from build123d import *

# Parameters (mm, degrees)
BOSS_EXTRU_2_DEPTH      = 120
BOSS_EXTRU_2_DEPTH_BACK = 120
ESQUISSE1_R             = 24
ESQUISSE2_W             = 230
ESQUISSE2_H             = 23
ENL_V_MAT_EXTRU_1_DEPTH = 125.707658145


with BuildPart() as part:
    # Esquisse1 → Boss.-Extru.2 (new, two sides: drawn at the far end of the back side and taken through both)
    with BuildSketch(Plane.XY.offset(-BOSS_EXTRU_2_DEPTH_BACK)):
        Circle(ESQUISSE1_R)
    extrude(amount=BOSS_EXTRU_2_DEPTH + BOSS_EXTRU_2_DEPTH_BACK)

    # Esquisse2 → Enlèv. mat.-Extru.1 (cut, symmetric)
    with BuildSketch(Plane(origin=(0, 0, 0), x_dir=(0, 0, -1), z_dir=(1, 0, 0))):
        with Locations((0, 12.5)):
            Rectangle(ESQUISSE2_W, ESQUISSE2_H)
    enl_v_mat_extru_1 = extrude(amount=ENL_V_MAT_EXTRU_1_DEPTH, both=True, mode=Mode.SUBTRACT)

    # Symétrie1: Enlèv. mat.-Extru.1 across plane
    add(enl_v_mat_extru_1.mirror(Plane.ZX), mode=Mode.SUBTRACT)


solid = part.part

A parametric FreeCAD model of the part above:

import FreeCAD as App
import Part
import Sketcher
from FreeCAD import Vector

doc = App.newDocument("Part")
body = doc.addObject("PartDesign::Body", "Body")

sketch1 = body.newObject("Sketcher::SketchObject", "Sketch")
sketch1.AttachmentSupport = (doc.getObject("XY_Plane"), [""])
sketch1.MapMode = "FlatFace"
sketch1.addGeometry(Part.Circle(Vector(0, 0, 0), Vector(0, 0, 1), 24), False)
sketch1.addConstraint(Sketcher.Constraint("Coincident", 0, 3, -1, 1))
sketch1.addConstraint(Sketcher.Constraint("Diameter", 0, 48.0))
pad1 = body.newObject("PartDesign::Pad", "Pad")
pad1.Profile = sketch1
pad1.Type = "TwoLengths"
pad1.Length = 120
pad1.Length2 = 120

sketch2 = body.newObject("Sketcher::SketchObject", "Sketch001")
sketch2.AttachmentSupport = (doc.getObject("YZ_Plane"), [""])
sketch2.MapMode = "FlatFace"
sketch2.addGeometry(Part.LineSegment(Vector(24, 115, 0), Vector(1, 115, 0)), False)
sketch2.addGeometry(Part.LineSegment(Vector(1, 115, 0), Vector(1, -115, 0)), False)
sketch2.addGeometry(Part.LineSegment(Vector(1, -115, 0), Vector(24, -115, 0)), False)
sketch2.addGeometry(Part.LineSegment(Vector(24, -115, 0), Vector(24, 115, 0)), False)
sketch2.addConstraint(Sketcher.Constraint("Coincident", 0, 2, 1, 1))
sketch2.addConstraint(Sketcher.Constraint("Coincident", 1, 2, 2, 1))
sketch2.addConstraint(Sketcher.Constraint("Coincident", 2, 2, 3, 1))
sketch2.addConstraint(Sketcher.Constraint("Coincident", 3, 2, 0, 1))
sketch2.addConstraint(Sketcher.Constraint("Horizontal", 0))
sketch2.addConstraint(Sketcher.Constraint("Vertical", 1))
sketch2.addConstraint(Sketcher.Constraint("Horizontal", 2))
sketch2.addConstraint(Sketcher.Constraint("Vertical", 3))
sketch2.addConstraint(Sketcher.Constraint("DistanceX", 0, 2, 0, 1, 23.0))
sketch2.addConstraint(Sketcher.Constraint("DistanceY", 1, 2, 1, 1, 230.0))
sketch2.addConstraint(Sketcher.Constraint("DistanceX", -1, 1, 0, 2, 1.0))
sketch2.addConstraint(Sketcher.Constraint("DistanceY", -1, 1, 0, 2, 115.0))
pocket1 = body.newObject("PartDesign::Pocket", "Pocket")
pocket1.Profile = sketch2
pocket1.Length = 251.415316
pocket1.Midplane = True
doc.recompute()

mirrored = body.newObject("PartDesign::Mirrored", "Mirrored")
mirrored.Originals = [pocket1]
mirrored.MirrorPlane = (doc.getObject("XZ_Plane"), [""])
body.Tip = mirrored

doc.recompute()
